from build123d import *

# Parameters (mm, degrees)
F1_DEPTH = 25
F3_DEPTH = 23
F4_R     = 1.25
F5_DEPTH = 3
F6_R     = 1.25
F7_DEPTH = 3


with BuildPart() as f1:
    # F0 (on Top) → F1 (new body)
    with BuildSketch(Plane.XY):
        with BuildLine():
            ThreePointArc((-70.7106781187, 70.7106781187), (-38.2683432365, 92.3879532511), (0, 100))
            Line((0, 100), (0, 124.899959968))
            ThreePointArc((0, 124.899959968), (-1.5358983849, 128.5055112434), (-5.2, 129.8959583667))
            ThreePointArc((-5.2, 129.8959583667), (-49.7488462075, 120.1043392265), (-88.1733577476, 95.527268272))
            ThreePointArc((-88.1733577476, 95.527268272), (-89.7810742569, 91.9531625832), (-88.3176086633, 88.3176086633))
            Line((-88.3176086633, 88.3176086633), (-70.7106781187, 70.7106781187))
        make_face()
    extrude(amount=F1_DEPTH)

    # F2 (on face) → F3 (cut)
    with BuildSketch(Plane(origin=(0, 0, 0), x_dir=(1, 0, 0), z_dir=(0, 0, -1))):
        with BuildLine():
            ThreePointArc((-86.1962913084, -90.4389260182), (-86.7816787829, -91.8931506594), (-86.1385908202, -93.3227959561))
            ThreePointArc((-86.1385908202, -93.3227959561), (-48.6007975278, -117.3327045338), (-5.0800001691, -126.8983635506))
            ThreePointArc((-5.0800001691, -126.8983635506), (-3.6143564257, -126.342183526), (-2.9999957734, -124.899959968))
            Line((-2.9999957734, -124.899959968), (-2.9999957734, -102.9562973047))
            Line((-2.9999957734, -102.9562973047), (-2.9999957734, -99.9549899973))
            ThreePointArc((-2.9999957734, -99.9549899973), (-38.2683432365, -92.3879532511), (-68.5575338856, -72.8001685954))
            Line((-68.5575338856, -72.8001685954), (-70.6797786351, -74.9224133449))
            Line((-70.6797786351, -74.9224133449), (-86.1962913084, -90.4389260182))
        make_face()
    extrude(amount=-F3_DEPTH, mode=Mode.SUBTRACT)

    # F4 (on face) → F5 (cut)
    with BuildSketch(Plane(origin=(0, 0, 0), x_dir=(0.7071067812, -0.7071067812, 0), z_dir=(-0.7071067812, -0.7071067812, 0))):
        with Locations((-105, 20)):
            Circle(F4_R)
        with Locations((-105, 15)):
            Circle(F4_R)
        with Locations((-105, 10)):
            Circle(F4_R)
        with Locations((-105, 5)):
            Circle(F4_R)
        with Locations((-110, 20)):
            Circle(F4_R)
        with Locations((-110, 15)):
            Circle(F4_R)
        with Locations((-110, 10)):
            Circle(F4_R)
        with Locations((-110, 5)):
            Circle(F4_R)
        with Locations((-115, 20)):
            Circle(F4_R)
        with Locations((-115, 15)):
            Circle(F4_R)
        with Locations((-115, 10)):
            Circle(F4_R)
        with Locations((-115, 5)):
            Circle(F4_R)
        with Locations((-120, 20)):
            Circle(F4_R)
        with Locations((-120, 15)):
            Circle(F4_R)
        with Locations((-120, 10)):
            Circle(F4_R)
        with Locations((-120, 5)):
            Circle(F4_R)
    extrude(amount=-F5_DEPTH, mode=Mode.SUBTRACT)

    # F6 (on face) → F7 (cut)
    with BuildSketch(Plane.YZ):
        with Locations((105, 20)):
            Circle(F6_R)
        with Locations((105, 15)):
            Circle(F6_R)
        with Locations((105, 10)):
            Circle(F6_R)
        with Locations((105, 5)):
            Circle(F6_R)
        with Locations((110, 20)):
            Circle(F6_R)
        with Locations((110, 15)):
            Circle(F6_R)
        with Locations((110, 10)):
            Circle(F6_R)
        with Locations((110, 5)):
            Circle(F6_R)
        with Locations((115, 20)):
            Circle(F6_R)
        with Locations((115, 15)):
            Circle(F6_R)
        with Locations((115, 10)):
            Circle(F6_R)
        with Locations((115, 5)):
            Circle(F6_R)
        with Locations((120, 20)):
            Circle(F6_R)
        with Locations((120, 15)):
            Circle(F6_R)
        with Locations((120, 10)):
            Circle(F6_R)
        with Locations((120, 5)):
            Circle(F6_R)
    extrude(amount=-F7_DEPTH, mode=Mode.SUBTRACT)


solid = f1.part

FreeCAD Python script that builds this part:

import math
import FreeCAD as App
import Part
import Sketcher
Q = App.Units.Quantity

doc = App.newDocument("Part")
params = doc.addObject("Spreadsheet::Sheet", "Params")
for row, (alias, value) in enumerate([
    ("sketch1_radius", "100 mm"),
    ("sketch1_radius2", "5 mm"),
    ("sketch1_radius3", "130 mm"),
    ("pad1_length", "25 mm"),
    ("sketch2_radius", "100 mm"),
    ("pocket1_length", "23 mm"),
    ("sketch3_diameter", "2.5 mm"),
    ("pocket2_length", "3 mm"),
    ("sketch4_diameter", "2.5 mm"),
    ("pocket3_length", "3 mm"),
], start=1):
    params.set(f"A{row}", alias)
    params.set(f"B{row}", "=" + value)
    params.setAlias(f"B{row}", alias)

body = doc.addObject("PartDesign::Body", "Body")

sketch1 = body.newObject("Sketcher::SketchObject", "Sketch")
sketch1.AttachmentSupport = (doc.getObject("XY_Plane"), [""])
sketch1.MapMode = "FlatFace"
sketch1.addGeometry(Part.ArcOfCircle(Part.Circle(App.Vector(0, 0, 0), App.Vector(0, 0, 1), 100), math.radians(90), math.radians(135)), False)
sketch1.addGeometry(Part.LineSegment(App.Vector(0, 100, 0), App.Vector(0, 125, 0)), False)
sketch1.addGeometry(Part.ArcOfCircle(Part.Circle(App.Vector(-5, 125, 0), App.Vector(0, 0, 1), 5), math.radians(0), math.radians(92)), False)
sketch1.addGeometry(Part.ArcOfCircle(Part.Circle(App.Vector(0, 0, 0), App.Vector(0, 0, 1), 130), math.radians(92), math.radians(133)), False)
sketch1.addGeometry(Part.ArcOfCircle(Part.Circle(App.Vector(-85, 92, 0), App.Vector(0, 0, 1), 5), math.radians(133), math.radians(225)), False)
sketch1.addGeometry(Part.LineSegment(App.Vector(-88, 88, 0), App.Vector(-71, 71, 0)), False)
sketch1.addConstraint(Sketcher.Constraint("Coincident", 0, 1, 1, 1))
sketch1.addConstraint(Sketcher.Constraint("Tangent", 1, 2, 2, 1))
sketch1.addConstraint(Sketcher.Constraint("Tangent", 2, 2, 3, 1))
sketch1.addConstraint(Sketcher.Constraint("Tangent", 3, 2, 4, 1))
sketch1.addConstraint(Sketcher.Constraint("Tangent", 4, 2, 5, 1))
sketch1.addConstraint(Sketcher.Constraint("Coincident", 5, 2, 0, 2))
sketch1.addConstraint(Sketcher.Constraint("Vertical", 1))
sketch1.addConstraint(Sketcher.Constraint("Coincident", 0, 3, -1, 1))
sketch1.addConstraint(Sketcher.Constraint("Coincident", 3, 3, -1, 1))
sketch1.addConstraint(Sketcher.Constraint("Equal", 2, 4))
sketch1.addConstraint(Sketcher.Constraint("PointOnObject", 0, 1, -2))
sketch1.addConstraint(Sketcher.Constraint("Radius", 0, Q("100 mm")))
sketch1.addConstraint(Sketcher.Constraint("Radius", 2, Q("5 mm")))
sketch1.addConstraint(Sketcher.Constraint("Radius", 3, Q("130 mm")))
sketch1.addConstraint(Sketcher.Constraint("Angle", 5, Q("-45 deg")))
sketch1.addConstraint(Sketcher.Constraint("Distance", 5, Q("24.89996 mm")))
sketch1.setExpression("Constraints[11]", "Params.sketch1_radius")
sketch1.setExpression("Constraints[12]", "Params.sketch1_radius2")
sketch1.setExpression("Constraints[13]", "Params.sketch1_radius3")
pad1 = body.newObject("PartDesign::Pad", "Pad")
pad1.Profile = sketch1
pad1.setExpression("Length", "Params.pad1_length")

sketch2 = body.newObject("Sketcher::SketchObject", "Sketch001")
sketch2.AttachmentSupport = (doc.getObject("XY_Plane"), [""])
sketch2.MapMode = "FlatFace"
sketch2.addGeometry(Part.ArcOfCircle(Part.Circle(App.Vector(-84.782075, 91.853143, 0), App.Vector(0, 0, 1), 2.000004), math.radians(132.707557), math.radians(225)), False)
sketch2.addGeometry(Part.ArcOfCircle(Part.Circle(App.Vector(0, 0, 0), App.Vector(0, 0, 1), 127.000004), math.radians(92.292443), math.radians(132.707557)), False)
sketch2.addGeometry(Part.ArcOfCircle(Part.Circle(App.Vector(-5, 124.89996, 0), App.Vector(0, 0, 1), 2.000004), math.radians(0), math.radians(92.292443)), False)
sketch2.addGeometry(Part.LineSegment(App.Vector(-2.999996, 124.89996, 0), App.Vector(-2.999996, 99.95499, 0)), False)
sketch2.addGeometry(Part.ArcOfCircle(Part.Circle(App.Vector(0, 0, 0), App.Vector(0, 0, 1), 100), math.radians(91.719129), math.radians(133.280871)), False)
sketch2.addGeometry(Part.LineSegment(App.Vector(-68.557534, 72.800169, 0), App.Vector(-86.196291, 90.438926, 0)), False)
sketch2.addConstraint(Sketcher.Constraint("Coincident", 0, 1, 1, 2))
sketch2.addConstraint(Sketcher.Constraint("Coincident", 1, 1, 2, 2))
sketch2.addConstraint(Sketcher.Constraint("Coincident", 2, 1, 3, 1))
sketch2.addConstraint(Sketcher.Constraint("Coincident", 3, 2, 4, 1))
sketch2.addConstraint(Sketcher.Constraint("Coincident", 4, 2, 5, 1))
sketch2.addConstraint(Sketcher.Constraint("Coincident", 5, 2, 0, 2))
sketch2.addConstraint(Sketcher.Constraint("Vertical", 3))
sketch2.addConstraint(Sketcher.Constraint("Coincident", 1, 3, -1, 1))
sketch2.addConstraint(Sketcher.Constraint("Coincident", 4, 3, -1, 1))
sketch2.addConstraint(Sketcher.Constraint("Radius", 4, Q("100 mm")))
sketch2.addConstraint(Sketcher.Constraint("DistanceX", 2, 3, -1, 1, Q("5 mm")))
sketch2.addConstraint(Sketcher.Constraint("DistanceX", 1, 1, -1, 1, Q("5.08 mm")))
sketch2.addConstraint(Sketcher.Constraint("Radius", 0, Q("2.000004 mm")))
sketch2.addConstraint(Sketcher.Constraint("Radius", 1, Q("127.000004 mm")))
sketch2.addConstraint(Sketcher.Constraint("Radius", 2, Q("2.000004 mm")))
sketch2.addConstraint(Sketcher.Constraint("DistanceY", 3, 2, 3, 1, Q("24.94497 mm")))
sketch2.addConstraint(Sketcher.Constraint("DistanceX", 5, 2, 0, 1, Q("0.0577 mm")))
sketch2.addConstraint(Sketcher.Constraint("Distance", 5, Q("24.94497 mm")))
sketch2.addConstraint(Sketcher.Constraint("DistanceX", 0, 1, -1, 1, Q("86.138591 mm")))
sketch2.addConstraint(Sketcher.Constraint("DistanceY", -1, 1, 4, 2, Q("72.800169 mm")))
sketch2.setExpression("Constraints[9]", "Params.sketch2_radius")
pocket1 = body.newObject("PartDesign::Pocket", "Pocket")
pocket1.Profile = sketch2
pocket1.setExpression("Length", "Params.pocket1_length")
pocket1.Reversed = True

sketch3 = body.newObject("Sketcher::SketchObject", "Sketch002")
sketch3.Placement = App.Placement(App.Vector(0, 0, 0), App.Rotation(App.Vector(0.707106781, -0.707106781, 0), App.Vector(0, 0, 0.999999999), App.Vector(-0.707106781, -0.707106781, 0), "ZXY"))
sketch3.addGeometry(Part.Circle(App.Vector(-105, 20, 0), App.Vector(0, 0, 1), 1.2), False)
sketch3.addGeometry(Part.Circle(App.Vector(-105, 15, 0), App.Vector(0, 0, 1), 1.2), False)
sketch3.addGeometry(Part.Circle(App.Vector(-105, 10, 0), App.Vector(0, 0, 1), 1.2), False)
sketch3.addGeometry(Part.Circle(App.Vector(-105, 5, 0), App.Vector(0, 0, 1), 1.2), False)
sketch3.addGeometry(Part.Circle(App.Vector(-110, 20, 0), App.Vector(0, 0, 1), 1.2), False)
sketch3.addGeometry(Part.Circle(App.Vector(-110, 15, 0), App.Vector(0, 0, 1), 1.2), False)
sketch3.addGeometry(Part.Circle(App.Vector(-110, 10, 0), App.Vector(0, 0, 1), 1.2), False)
sketch3.addGeometry(Part.Circle(App.Vector(-110, 5, 0), App.Vector(0, 0, 1), 1.2), False)
sketch3.addGeometry(Part.Circle(App.Vector(-115, 20, 0), App.Vector(0, 0, 1), 1.2), False)
sketch3.addGeometry(Part.Circle(App.Vector(-115, 15, 0), App.Vector(0, 0, 1), 1.2), False)
sketch3.addGeometry(Part.Circle(App.Vector(-115, 10, 0), App.Vector(0, 0, 1), 1.2), False)
sketch3.addGeometry(Part.Circle(App.Vector(-115, 5, 0), App.Vector(0, 0, 1), 1.2), False)
sketch3.addGeometry(Part.Circle(App.Vector(-120, 20, 0), App.Vector(0, 0, 1), 1.2), False)
sketch3.addGeometry(Part.Circle(App.Vector(-120, 15, 0), App.Vector(0, 0, 1), 1.2), False)
sketch3.addGeometry(Part.Circle(App.Vector(-120, 10, 0), App.Vector(0, 0, 1), 1.2), False)
sketch3.addGeometry(Part.Circle(App.Vector(-120, 5, 0), App.Vector(0, 0, 1), 1.2), False)
sketch3.addConstraint(Sketcher.Constraint("Equal", 0, 1))
sketch3.addConstraint(Sketcher.Constraint("Equal", 1, 2))
sketch3.addConstraint(Sketcher.Constraint("Equal", 2, 3))
sketch3.addConstraint(Sketcher.Constraint("Equal", 3, 4))
sketch3.addConstraint(Sketcher.Constraint("Equal", 4, 5))
sketch3.addConstraint(Sketcher.Constraint("Equal", 5, 6))
sketch3.addConstraint(Sketcher.Constraint("Equal", 6, 7))
sketch3.addConstraint(Sketcher.Constraint("Equal", 7, 8))
sketch3.addConstraint(Sketcher.Constraint("Equal", 8, 9))
sketch3.addConstraint(Sketcher.Constraint("Equal", 9, 10))
sketch3.addConstraint(Sketcher.Constraint("Equal", 10, 11))
sketch3.addConstraint(Sketcher.Constraint("Equal", 11, 12))
sketch3.addConstraint(Sketcher.Constraint("Equal", 12, 13))
sketch3.addConstraint(Sketcher.Constraint("Equal", 13, 14))
sketch3.addConstraint(Sketcher.Constraint("Equal", 14, 15))
sketch3.addConstraint(Sketcher.Constraint("Horizontal", 0, 3, 4, 3))
sketch3.addConstraint(Sketcher.Constraint("Horizontal", 1, 3, 5, 3))
sketch3.addConstraint(Sketcher.Constraint("Horizontal", 2, 3, 6, 3))
sketch3.addConstraint(Sketcher.Constraint("Horizontal", 3, 3, 7, 3))
sketch3.addConstraint(Sketcher.Constraint("Horizontal", 4, 3, 8, 3))
sketch3.addConstraint(Sketcher.Constraint("Horizontal", 5, 3, 9, 3))
sketch3.addConstraint(Sketcher.Constraint("Horizontal", 6, 3, 10, 3))
sketch3.addConstraint(Sketcher.Constraint("Horizontal", 7, 3, 11, 3))
sketch3.addConstraint(Sketcher.Constraint("Horizontal", 8, 3, 12, 3))
sketch3.addConstraint(Sketcher.Constraint("Horizontal", 9, 3, 13, 3))
sketch3.addConstraint(Sketcher.Constraint("Horizontal", 10, 3, 14, 3))
sketch3.addConstraint(Sketcher.Constraint("Horizontal", 11, 3, 15, 3))
sketch3.addConstraint(Sketcher.Constraint("Vertical", 0, 3, 1, 3))
sketch3.addConstraint(Sketcher.Constraint("Vertical", 1, 3, 2, 3))
sketch3.addConstraint(Sketcher.Constraint("Vertical", 2, 3, 3, 3))
sketch3.addConstraint(Sketcher.Constraint("Vertical", 4, 3, 5, 3))
sketch3.addConstraint(Sketcher.Constraint("Vertical", 5, 3, 6, 3))
sketch3.addConstraint(Sketcher.Constraint("Vertical", 6, 3, 7, 3))
sketch3.addConstraint(Sketcher.Constraint("Vertical", 8, 3, 9, 3))
sketch3.addConstraint(Sketcher.Constraint("Vertical", 9, 3, 10, 3))
sketch3.addConstraint(Sketcher.Constraint("Vertical", 10, 3, 11, 3))
sketch3.addConstraint(Sketcher.Constraint("Vertical", 12, 3, 13, 3))
sketch3.addConstraint(Sketcher.Constraint("Vertical", 13, 3, 14, 3))
sketch3.addConstraint(Sketcher.Constraint("Vertical", 14, 3, 15, 3))
sketch3.addConstraint(Sketcher.Constraint("Diameter", 0, Q("2.5 mm")))
sketch3.addConstraint(Sketcher.Constraint("DistanceX", 0, 3, -1, 1, Q("105 mm")))
sketch3.addConstraint(Sketcher.Constraint("DistanceY", -1, 1, 0, 3, Q("20 mm")))
sketch3.addConstraint(Sketcher.Constraint("DistanceY", -1, 1, 1, 3, Q("15 mm")))
sketch3.addConstraint(Sketcher.Constraint("DistanceY", -1, 1, 2, 3, Q("10 mm")))
sketch3.addConstraint(Sketcher.Constraint("DistanceY", -1, 1, 3, 3, Q("5 mm")))
sketch3.addConstraint(Sketcher.Constraint("DistanceX", 4, 3, -1, 1, Q("110 mm")))
sketch3.addConstraint(Sketcher.Constraint("DistanceX", 8, 3, -1, 1, Q("115 mm")))
sketch3.addConstraint(Sketcher.Constraint("DistanceX", 12, 3, -1, 1, Q("120 mm")))
sketch3.setExpression("Constraints[39]", "Params.sketch3_diameter")
pocket2 = body.newObject("PartDesign::Pocket", "Pocket001")
pocket2.Profile = sketch3
pocket2.setExpression("Length", "Params.pocket2_length")

sketch4 = body.newObject("Sketcher::SketchObject", "Sketch003")
sketch4.AttachmentSupport = (doc.getObject("YZ_Plane"), [""])
sketch4.MapMode = "FlatFace"
sketch4.addGeometry(Part.Circle(App.Vector(105, 20, 0), App.Vector(0, 0, 1), 1.2), False)
sketch4.addGeometry(Part.Circle(App.Vector(105, 15, 0), App.Vector(0, 0, 1), 1.2), False)
sketch4.addGeometry(Part.Circle(App.Vector(105, 10, 0), App.Vector(0, 0, 1), 1.2), False)
sketch4.addGeometry(Part.Circle(App.Vector(105, 5, 0), App.Vector(0, 0, 1), 1.2), False)
sketch4.addGeometry(Part.Circle(App.Vector(110, 20, 0), App.Vector(0, 0, 1), 1.2), False)
sketch4.addGeometry(Part.Circle(App.Vector(110, 15, 0), App.Vector(0, 0, 1), 1.2), False)
sketch4.addGeometry(Part.Circle(App.Vector(110, 10, 0), App.Vector(0, 0, 1), 1.2), False)
sketch4.addGeometry(Part.Circle(App.Vector(110, 5, 0), App.Vector(0, 0, 1), 1.2), False)
sketch4.addGeometry(Part.Circle(App.Vector(115, 20, 0), App.Vector(0, 0, 1), 1.2), False)
sketch4.addGeometry(Part.Circle(App.Vector(115, 15, 0), App.Vector(0, 0, 1), 1.2), False)
sketch4.addGeometry(Part.Circle(App.Vector(115, 10, 0), App.Vector(0, 0, 1), 1.2), False)
sketch4.addGeometry(Part.Circle(App.Vector(115, 5, 0), App.Vector(0, 0, 1), 1.2), False)
sketch4.addGeometry(Part.Circle(App.Vector(120, 20, 0), App.Vector(0, 0, 1), 1.2), False)
sketch4.addGeometry(Part.Circle(App.Vector(120, 15, 0), App.Vector(0, 0, 1), 1.2), False)
sketch4.addGeometry(Part.Circle(App.Vector(120, 10, 0), App.Vector(0, 0, 1), 1.2), False)
sketch4.addGeometry(Part.Circle(App.Vector(120, 5, 0), App.Vector(0, 0, 1), 1.2), False)
sketch4.addConstraint(Sketcher.Constraint("Equal", 0, 1))
sketch4.addConstraint(Sketcher.Constraint("Equal", 1, 2))
sketch4.addConstraint(Sketcher.Constraint("Equal", 2, 3))
sketch4.addConstraint(Sketcher.Constraint("Equal", 3, 4))
sketch4.addConstraint(Sketcher.Constraint("Equal", 4, 5))
sketch4.addConstraint(Sketcher.Constraint("Equal", 5, 6))
sketch4.addConstraint(Sketcher.Constraint("Equal", 6, 7))
sketch4.addConstraint(Sketcher.Constraint("Equal", 7, 8))
sketch4.addConstraint(Sketcher.Constraint("Equal", 8, 9))
sketch4.addConstraint(Sketcher.Constraint("Equal", 9, 10))
sketch4.addConstraint(Sketcher.Constraint("Equal", 10, 11))
sketch4.addConstraint(Sketcher.Constraint("Equal", 11, 12))
sketch4.addConstraint(Sketcher.Constraint("Equal", 12, 13))
sketch4.addConstraint(Sketcher.Constraint("Equal", 13, 14))
sketch4.addConstraint(Sketcher.Constraint("Equal", 14, 15))
sketch4.addConstraint(Sketcher.Constraint("Horizontal", 0, 3, 4, 3))
sketch4.addConstraint(Sketcher.Constraint("Horizontal", 1, 3, 5, 3))
sketch4.addConstraint(Sketcher.Constraint("Horizontal", 2, 3, 6, 3))
sketch4.addConstraint(Sketcher.Constraint("Horizontal", 3, 3, 7, 3))
sketch4.addConstraint(Sketcher.Constraint("Horizontal", 4, 3, 8, 3))
sketch4.addConstraint(Sketcher.Constraint("Horizontal", 5, 3, 9, 3))
sketch4.addConstraint(Sketcher.Constraint("Horizontal", 6, 3, 10, 3))
sketch4.addConstraint(Sketcher.Constraint("Horizontal", 7, 3, 11, 3))
sketch4.addConstraint(Sketcher.Constraint("Horizontal", 8, 3, 12, 3))
sketch4.addConstraint(Sketcher.Constraint("Horizontal", 9, 3, 13, 3))
sketch4.addConstraint(Sketcher.Constraint("Horizontal", 10, 3, 14, 3))
sketch4.addConstraint(Sketcher.Constraint("Horizontal", 11, 3, 15, 3))
sketch4.addConstraint(Sketcher.Constraint("Vertical", 0, 3, 1, 3))
sketch4.addConstraint(Sketcher.Constraint("Vertical", 1, 3, 2, 3))
sketch4.addConstraint(Sketcher.Constraint("Vertical", 2, 3, 3, 3))
sketch4.addConstraint(Sketcher.Constraint("Vertical", 4, 3, 5, 3))
sketch4.addConstraint(Sketcher.Constraint("Vertical", 5, 3, 6, 3))
sketch4.addConstraint(Sketcher.Constraint("Vertical", 6, 3, 7, 3))
sketch4.addConstraint(Sketcher.Constraint("Vertical", 8, 3, 9, 3))
sketch4.addConstraint(Sketcher.Constraint("Vertical", 9, 3, 10, 3))
sketch4.addConstraint(Sketcher.Constraint("Vertical", 10, 3, 11, 3))
sketch4.addConstraint(Sketcher.Constraint("Vertical", 12, 3, 13, 3))
sketch4.addConstraint(Sketcher.Constraint("Vertical", 13, 3, 14, 3))
sketch4.addConstraint(Sketcher.Constraint("Vertical", 14, 3, 15, 3))
sketch4.addConstraint(Sketcher.Constraint("Diameter", 0, Q("2.5 mm")))
sketch4.addConstraint(Sketcher.Constraint("DistanceX", -1, 1, 0, 3, Q("105 mm")))
sketch4.addConstraint(Sketcher.Constraint("DistanceY", -1, 1, 0, 3, Q("20 mm")))
sketch4.addConstraint(Sketcher.Constraint("DistanceY", -1, 1, 1, 3, Q("15 mm")))
sketch4.addConstraint(Sketcher.Constraint("DistanceY", -1, 1, 2, 3, Q("10 mm")))
sketch4.addConstraint(Sketcher.Constraint("DistanceY", -1, 1, 3, 3, Q("5 mm")))
sketch4.addConstraint(Sketcher.Constraint("DistanceX", -1, 1, 4, 3, Q("110 mm")))
sketch4.addConstraint(Sketcher.Constraint("DistanceX", -1, 1, 8, 3, Q("115 mm")))
sketch4.addConstraint(Sketcher.Constraint("DistanceX", -1, 1, 12, 3, Q("120 mm")))
sketch4.setExpression("Constraints[39]", "Params.sketch4_diameter")
pocket3 = body.newObject("PartDesign::Pocket", "Pocket002")
pocket3.Profile = sketch4
pocket3.setExpression("Length", "Params.pocket3_length")

doc.recompute()
